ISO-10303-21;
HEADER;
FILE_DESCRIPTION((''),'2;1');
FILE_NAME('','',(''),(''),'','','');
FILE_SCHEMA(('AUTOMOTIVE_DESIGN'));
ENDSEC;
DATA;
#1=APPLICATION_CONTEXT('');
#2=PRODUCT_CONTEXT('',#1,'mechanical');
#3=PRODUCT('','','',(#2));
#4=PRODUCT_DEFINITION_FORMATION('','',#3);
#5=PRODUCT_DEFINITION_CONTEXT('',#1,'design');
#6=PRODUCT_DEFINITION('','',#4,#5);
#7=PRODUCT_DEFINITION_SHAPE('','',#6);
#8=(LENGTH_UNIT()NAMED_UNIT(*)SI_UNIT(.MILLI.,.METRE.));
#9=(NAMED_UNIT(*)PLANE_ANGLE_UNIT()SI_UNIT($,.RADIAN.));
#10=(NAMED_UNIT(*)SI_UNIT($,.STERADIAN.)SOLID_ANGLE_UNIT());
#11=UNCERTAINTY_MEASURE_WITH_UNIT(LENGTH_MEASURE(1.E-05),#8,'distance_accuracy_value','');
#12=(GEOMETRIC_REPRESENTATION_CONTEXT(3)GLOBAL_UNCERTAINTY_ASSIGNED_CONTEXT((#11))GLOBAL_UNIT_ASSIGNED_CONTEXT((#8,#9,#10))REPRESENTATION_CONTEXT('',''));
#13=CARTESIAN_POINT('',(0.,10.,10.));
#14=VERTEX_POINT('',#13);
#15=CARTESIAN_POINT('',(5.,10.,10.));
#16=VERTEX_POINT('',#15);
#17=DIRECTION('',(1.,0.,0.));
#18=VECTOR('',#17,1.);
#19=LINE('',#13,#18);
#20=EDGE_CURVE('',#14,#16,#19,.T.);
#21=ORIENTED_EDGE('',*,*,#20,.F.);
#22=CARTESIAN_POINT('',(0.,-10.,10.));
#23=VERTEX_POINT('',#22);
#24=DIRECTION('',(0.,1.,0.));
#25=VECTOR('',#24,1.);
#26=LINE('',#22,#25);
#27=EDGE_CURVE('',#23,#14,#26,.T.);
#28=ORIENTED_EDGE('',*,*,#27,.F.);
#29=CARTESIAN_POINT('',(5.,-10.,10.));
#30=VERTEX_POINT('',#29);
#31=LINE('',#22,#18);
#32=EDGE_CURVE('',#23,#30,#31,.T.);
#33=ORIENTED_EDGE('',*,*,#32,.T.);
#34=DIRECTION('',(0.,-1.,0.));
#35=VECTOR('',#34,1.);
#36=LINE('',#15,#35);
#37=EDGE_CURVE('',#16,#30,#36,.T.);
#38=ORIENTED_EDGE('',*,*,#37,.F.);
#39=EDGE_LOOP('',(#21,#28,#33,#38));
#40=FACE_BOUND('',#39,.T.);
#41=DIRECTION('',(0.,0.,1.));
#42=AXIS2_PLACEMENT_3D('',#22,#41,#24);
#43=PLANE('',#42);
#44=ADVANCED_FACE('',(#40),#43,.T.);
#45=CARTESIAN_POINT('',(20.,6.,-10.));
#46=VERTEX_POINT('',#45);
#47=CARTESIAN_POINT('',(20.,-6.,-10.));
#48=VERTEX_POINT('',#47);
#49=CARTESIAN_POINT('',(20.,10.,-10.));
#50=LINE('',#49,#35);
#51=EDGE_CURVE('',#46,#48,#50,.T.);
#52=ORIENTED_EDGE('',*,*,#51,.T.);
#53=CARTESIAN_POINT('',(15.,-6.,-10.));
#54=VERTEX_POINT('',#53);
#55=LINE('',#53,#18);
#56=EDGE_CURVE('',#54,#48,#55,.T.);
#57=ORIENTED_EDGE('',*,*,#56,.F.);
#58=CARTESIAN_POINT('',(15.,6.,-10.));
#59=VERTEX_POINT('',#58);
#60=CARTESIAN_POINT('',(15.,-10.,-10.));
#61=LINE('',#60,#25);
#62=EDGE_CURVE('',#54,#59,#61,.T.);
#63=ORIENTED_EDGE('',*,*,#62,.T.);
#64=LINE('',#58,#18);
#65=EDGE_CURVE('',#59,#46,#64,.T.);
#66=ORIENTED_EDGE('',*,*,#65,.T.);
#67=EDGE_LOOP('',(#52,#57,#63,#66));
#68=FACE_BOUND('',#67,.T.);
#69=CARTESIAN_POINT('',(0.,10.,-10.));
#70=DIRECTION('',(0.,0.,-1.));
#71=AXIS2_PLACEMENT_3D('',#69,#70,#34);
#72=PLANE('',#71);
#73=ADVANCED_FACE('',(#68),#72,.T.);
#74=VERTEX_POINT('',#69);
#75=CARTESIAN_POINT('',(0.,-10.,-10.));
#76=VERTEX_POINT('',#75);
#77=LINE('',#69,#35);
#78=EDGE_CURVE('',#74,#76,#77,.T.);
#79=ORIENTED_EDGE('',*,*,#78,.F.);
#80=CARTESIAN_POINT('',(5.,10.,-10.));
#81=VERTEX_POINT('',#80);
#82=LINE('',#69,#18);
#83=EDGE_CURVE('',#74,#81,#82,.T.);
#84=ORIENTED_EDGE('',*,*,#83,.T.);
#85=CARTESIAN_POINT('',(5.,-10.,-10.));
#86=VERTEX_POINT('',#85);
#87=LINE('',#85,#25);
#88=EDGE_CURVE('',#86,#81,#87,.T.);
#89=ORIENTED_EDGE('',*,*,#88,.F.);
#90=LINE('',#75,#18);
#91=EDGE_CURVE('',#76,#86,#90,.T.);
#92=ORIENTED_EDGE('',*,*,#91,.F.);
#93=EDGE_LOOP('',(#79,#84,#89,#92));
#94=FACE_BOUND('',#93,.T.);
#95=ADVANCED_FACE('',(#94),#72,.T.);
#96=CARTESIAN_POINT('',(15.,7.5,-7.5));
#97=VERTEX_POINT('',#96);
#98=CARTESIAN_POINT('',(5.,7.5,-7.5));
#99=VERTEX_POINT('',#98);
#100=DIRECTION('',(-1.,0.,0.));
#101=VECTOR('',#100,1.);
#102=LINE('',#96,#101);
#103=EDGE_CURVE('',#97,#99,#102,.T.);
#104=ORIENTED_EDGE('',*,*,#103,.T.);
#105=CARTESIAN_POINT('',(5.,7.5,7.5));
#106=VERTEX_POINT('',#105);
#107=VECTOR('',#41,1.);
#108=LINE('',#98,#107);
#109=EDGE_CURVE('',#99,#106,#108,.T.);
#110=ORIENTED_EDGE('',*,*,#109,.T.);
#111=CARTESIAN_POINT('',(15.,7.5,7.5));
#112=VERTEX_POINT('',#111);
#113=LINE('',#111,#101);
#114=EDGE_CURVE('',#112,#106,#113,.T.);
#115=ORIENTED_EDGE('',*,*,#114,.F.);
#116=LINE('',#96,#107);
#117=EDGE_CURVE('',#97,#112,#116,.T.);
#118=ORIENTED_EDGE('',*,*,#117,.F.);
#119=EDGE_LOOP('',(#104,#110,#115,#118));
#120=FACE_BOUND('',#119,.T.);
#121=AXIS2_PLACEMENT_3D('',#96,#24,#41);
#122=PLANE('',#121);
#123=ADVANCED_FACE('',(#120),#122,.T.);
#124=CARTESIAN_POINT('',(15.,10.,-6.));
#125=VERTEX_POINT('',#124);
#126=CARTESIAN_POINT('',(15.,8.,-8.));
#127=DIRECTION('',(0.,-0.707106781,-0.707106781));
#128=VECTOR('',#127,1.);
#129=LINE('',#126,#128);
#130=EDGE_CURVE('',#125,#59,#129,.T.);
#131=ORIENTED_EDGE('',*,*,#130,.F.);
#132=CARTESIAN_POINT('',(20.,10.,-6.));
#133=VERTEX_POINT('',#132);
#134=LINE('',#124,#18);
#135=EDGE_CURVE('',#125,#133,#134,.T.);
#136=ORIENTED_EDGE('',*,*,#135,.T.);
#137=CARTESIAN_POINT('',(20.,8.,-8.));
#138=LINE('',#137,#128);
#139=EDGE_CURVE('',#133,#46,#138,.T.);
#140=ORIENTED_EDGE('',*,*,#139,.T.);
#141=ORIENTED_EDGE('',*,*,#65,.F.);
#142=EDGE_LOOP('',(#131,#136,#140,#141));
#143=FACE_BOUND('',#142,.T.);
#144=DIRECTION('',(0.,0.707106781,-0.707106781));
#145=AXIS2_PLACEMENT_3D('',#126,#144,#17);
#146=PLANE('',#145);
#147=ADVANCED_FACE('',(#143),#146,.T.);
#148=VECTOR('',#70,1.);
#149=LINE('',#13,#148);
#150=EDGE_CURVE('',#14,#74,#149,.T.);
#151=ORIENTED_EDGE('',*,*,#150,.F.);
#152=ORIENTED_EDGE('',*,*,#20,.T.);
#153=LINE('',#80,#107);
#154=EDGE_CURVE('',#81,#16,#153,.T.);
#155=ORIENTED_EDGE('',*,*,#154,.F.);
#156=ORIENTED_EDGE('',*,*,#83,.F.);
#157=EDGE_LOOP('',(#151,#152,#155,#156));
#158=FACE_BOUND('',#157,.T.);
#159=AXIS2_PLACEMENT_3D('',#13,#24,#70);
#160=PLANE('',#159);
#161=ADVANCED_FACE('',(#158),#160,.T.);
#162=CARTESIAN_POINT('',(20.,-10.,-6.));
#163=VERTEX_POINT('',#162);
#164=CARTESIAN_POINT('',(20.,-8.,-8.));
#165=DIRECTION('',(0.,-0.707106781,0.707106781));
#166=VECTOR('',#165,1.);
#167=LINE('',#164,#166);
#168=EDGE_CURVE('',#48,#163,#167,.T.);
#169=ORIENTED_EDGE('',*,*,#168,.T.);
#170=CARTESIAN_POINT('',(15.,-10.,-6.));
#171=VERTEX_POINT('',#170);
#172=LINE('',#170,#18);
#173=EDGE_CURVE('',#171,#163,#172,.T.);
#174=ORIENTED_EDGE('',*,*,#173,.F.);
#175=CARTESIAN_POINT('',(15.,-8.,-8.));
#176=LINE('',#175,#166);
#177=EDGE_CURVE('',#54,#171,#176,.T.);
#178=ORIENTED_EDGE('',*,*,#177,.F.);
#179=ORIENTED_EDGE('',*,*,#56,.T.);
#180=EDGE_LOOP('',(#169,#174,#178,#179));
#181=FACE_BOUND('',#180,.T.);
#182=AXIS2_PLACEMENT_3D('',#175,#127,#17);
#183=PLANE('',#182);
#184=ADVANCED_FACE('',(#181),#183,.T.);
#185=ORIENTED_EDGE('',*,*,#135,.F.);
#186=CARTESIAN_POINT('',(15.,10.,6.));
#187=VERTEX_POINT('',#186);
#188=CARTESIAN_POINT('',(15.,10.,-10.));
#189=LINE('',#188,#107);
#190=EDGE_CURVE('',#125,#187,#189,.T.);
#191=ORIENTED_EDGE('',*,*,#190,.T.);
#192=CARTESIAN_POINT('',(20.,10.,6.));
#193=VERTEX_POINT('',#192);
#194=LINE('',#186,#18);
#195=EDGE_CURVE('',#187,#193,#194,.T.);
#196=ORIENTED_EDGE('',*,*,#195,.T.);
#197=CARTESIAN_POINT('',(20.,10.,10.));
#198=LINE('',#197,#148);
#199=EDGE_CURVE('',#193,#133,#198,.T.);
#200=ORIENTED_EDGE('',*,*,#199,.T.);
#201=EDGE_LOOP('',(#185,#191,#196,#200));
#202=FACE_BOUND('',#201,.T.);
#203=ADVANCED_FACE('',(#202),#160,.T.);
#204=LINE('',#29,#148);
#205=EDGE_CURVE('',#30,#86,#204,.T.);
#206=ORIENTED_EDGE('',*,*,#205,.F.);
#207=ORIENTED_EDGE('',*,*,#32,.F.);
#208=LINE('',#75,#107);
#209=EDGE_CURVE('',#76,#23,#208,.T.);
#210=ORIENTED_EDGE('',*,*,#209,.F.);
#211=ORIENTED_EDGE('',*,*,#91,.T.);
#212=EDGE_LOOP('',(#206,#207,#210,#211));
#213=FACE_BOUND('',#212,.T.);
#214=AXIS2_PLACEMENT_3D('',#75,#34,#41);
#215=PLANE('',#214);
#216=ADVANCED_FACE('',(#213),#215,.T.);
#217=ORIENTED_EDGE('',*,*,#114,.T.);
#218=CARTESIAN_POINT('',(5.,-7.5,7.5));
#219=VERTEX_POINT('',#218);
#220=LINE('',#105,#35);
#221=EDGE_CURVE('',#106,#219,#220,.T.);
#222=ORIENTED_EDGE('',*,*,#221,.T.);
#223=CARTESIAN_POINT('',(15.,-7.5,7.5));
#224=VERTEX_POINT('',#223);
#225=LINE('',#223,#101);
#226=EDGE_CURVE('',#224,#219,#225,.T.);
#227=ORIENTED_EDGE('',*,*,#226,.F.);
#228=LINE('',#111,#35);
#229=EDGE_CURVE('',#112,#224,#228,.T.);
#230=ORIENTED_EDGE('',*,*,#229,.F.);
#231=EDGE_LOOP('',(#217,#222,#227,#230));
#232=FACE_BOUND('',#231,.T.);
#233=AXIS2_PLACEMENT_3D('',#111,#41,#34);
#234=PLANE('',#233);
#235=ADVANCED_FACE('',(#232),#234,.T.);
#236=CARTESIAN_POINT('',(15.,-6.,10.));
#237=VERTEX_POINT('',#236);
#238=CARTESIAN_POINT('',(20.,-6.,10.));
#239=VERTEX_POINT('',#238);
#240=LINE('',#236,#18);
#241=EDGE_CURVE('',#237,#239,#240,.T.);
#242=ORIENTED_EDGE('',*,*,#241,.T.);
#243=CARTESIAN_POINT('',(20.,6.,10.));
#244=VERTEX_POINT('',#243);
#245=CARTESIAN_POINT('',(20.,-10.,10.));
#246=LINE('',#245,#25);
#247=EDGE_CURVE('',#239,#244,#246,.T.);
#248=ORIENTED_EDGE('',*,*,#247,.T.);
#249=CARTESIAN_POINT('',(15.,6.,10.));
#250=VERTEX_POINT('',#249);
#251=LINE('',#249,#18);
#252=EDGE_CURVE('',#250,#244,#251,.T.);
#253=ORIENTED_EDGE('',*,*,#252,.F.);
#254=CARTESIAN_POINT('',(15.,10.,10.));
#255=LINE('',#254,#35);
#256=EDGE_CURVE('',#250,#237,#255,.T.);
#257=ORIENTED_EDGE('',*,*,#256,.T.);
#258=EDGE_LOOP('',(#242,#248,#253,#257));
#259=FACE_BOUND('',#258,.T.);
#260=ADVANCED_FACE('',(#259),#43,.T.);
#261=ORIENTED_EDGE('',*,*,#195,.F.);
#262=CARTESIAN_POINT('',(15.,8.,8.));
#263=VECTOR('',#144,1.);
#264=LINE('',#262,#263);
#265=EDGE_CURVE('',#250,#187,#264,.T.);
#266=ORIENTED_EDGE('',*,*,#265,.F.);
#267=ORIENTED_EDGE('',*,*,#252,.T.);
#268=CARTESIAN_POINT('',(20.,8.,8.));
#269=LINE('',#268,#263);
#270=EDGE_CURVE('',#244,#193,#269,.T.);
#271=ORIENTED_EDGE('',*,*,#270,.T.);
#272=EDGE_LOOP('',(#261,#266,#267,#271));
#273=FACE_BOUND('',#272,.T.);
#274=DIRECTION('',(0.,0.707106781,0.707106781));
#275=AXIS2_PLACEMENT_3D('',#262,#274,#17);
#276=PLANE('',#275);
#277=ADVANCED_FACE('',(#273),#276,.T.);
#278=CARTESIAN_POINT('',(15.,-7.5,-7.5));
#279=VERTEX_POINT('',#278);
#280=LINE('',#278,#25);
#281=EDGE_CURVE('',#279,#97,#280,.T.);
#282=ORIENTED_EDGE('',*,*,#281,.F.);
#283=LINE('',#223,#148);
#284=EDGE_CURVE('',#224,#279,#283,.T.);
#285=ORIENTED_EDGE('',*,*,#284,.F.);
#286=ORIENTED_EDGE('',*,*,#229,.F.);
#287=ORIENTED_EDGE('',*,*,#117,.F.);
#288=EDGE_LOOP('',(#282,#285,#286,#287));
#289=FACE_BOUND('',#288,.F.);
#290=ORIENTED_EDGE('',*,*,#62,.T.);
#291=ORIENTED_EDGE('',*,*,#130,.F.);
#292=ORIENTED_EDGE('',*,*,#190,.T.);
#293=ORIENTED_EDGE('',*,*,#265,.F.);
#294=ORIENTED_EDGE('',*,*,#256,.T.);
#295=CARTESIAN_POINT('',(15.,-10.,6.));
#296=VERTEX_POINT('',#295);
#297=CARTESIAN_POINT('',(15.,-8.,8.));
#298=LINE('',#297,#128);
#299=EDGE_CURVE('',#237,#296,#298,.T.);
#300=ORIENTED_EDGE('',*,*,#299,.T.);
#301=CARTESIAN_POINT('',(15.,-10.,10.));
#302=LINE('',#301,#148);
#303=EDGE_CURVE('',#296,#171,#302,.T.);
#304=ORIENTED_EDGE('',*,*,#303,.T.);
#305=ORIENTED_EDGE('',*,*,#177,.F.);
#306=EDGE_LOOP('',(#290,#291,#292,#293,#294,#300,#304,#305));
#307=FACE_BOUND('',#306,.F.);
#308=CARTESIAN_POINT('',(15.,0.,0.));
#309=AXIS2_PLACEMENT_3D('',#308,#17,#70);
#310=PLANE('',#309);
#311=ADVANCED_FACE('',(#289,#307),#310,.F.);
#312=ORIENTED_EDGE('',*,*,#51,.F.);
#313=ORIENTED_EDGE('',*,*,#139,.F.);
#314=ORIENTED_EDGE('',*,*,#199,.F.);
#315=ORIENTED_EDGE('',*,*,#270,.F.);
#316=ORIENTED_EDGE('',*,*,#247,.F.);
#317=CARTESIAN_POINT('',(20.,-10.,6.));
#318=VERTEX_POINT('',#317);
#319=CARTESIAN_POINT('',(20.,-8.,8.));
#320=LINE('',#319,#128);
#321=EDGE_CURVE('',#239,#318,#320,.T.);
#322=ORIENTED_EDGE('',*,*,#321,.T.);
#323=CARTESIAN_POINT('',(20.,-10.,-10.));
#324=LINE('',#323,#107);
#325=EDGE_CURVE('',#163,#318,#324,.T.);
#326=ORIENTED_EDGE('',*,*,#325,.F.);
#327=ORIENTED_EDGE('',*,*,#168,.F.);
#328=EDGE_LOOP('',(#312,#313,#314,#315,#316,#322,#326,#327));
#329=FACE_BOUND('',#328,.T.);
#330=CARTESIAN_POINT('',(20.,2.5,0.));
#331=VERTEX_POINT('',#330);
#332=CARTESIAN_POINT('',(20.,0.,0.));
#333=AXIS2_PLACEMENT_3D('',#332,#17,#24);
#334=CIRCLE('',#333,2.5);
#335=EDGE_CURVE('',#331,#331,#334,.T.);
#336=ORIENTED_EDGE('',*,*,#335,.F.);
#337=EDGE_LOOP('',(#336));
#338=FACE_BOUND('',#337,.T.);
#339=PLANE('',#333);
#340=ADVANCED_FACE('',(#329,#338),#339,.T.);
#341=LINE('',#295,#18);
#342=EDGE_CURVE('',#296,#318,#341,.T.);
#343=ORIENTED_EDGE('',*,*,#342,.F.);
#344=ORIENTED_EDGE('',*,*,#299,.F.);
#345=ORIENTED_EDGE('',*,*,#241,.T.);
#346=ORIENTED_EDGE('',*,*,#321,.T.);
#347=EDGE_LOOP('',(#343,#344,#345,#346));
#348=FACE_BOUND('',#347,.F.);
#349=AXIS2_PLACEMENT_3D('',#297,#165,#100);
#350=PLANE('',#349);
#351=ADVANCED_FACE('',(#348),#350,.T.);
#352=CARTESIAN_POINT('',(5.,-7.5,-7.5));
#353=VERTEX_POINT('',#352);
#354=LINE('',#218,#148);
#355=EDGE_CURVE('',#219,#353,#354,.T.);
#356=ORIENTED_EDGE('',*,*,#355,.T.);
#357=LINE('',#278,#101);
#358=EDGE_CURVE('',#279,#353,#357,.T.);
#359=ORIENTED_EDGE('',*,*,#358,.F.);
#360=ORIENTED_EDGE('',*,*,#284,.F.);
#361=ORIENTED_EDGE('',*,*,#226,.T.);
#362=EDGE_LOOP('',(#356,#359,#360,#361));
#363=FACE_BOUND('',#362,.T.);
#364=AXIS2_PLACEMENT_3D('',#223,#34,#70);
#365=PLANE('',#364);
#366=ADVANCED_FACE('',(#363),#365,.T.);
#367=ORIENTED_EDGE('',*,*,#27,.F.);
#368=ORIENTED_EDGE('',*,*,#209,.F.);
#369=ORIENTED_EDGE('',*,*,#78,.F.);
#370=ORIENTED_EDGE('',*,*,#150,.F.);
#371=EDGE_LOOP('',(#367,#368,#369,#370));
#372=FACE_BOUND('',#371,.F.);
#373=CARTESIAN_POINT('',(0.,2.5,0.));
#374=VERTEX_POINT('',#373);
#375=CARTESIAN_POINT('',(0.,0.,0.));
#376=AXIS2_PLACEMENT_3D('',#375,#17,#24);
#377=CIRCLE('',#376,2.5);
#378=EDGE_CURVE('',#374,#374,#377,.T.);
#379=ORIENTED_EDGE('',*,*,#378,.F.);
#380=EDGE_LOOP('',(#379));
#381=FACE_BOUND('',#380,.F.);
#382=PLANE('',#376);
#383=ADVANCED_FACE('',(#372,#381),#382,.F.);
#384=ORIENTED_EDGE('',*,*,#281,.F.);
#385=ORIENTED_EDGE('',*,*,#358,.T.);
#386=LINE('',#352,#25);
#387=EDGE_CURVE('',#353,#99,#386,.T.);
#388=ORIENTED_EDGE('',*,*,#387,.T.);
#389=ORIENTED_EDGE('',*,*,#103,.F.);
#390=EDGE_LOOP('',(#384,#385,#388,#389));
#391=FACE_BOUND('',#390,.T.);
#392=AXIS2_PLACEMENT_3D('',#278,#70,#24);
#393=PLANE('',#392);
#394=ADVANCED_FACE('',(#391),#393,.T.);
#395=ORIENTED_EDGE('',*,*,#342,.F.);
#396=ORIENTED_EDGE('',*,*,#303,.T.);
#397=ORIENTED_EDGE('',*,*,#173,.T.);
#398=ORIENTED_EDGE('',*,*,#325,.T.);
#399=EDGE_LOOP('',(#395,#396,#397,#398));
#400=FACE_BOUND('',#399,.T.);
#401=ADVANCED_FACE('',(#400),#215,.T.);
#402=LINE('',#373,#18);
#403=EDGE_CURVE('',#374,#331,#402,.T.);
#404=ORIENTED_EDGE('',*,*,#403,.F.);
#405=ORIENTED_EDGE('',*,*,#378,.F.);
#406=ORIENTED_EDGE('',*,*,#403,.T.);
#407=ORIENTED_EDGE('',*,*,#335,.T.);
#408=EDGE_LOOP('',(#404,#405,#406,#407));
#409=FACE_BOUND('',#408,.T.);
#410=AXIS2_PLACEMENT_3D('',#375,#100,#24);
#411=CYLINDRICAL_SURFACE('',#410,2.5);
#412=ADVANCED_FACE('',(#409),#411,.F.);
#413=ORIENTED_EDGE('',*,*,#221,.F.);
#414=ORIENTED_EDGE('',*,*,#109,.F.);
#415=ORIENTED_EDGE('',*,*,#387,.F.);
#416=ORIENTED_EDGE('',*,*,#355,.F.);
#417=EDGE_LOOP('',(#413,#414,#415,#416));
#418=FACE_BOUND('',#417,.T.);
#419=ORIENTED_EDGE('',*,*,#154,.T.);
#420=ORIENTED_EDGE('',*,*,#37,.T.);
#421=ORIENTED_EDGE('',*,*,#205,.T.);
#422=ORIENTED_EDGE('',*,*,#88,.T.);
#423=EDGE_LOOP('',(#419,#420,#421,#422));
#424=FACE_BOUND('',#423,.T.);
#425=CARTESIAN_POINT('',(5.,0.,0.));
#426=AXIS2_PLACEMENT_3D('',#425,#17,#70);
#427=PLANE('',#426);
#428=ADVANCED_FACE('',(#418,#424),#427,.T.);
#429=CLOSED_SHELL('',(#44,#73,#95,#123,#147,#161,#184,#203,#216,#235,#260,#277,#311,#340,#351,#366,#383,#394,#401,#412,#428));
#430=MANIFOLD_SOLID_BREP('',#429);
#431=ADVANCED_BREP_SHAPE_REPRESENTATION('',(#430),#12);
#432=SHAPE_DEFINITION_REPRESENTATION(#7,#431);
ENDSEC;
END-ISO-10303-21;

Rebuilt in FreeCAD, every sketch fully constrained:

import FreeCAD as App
import Part
import Sketcher
from FreeCAD import Vector


def edges_at(feature, points):
    """Names of the edges that pass closest to the given points."""
    edges = feature.Shape.Edges
    near = lambda p: min(range(len(edges)), key=lambda i: edges[i].distToShape(Part.Vertex(*p))[0])
    return sorted({f"Edge{near(p) + 1}" for p in points})


def add_polygon(sketch, points):
    """Adds a closed chain of lines whose ends are joined by coincident constraints."""
    first, n = sketch.GeometryCount, len(points)
    for a, b in zip(points, points[1:] + points[:1]):
        sketch.addGeometry(Part.LineSegment(App.Vector(*a, 0), App.Vector(*b, 0)), False)
    for i in range(n):
        sketch.addConstraint(Sketcher.Constraint("Coincident", first + i, 2, first + (i + 1) % n, 1))

doc = App.newDocument("Part")
body = doc.addObject("PartDesign::Body", "Body")

sketch1 = doc.addObject("Sketcher::SketchObject", "Sketch")
body.addObject(sketch1)
sketch1.AttachmentSupport = (doc.YZ_Plane, [""])
sketch1.MapMode = "FlatFace"
add_polygon(sketch1, [(10, 10), (-10, 10), (-10, -10), (10, -10)])
sketch1.addGeometry(Part.Circle(Vector(0, 0, 0), Vector(0, 0, 1), 2.5), False)
sketch1.addConstraint([
    Sketcher.Constraint("Horizontal", 0),
    Sketcher.Constraint("Vertical", 1),
    Sketcher.Constraint("Horizontal", 2),
    Sketcher.Constraint("Vertical", 3),
    Sketcher.Constraint("Coincident", 4, 3, -1, 1),
    Sketcher.Constraint("Symmetric", 0, 2, 2, 2, -1, 1),
    Sketcher.Constraint("Equal", 2, 1),
    Sketcher.Constraint("Diameter", 4, 5.0),
    Sketcher.Constraint("DistanceX", 0, 2, 0, 1, 20.0),
])
pad1 = doc.addObject("PartDesign::Pad", "Pad")
body.addObject(pad1)
pad1.Profile = sketch1
pad1.Length = 20

sketch2 = doc.addObject("Sketcher::SketchObject", "Sketch001")
body.addObject(sketch2)
sketch2.AttachmentSupport = (doc.YZ_Plane, [""])
sketch2.MapMode = "FlatFace"
sketch2.AttachmentOffset = App.Placement(Vector(0, 0, 15), App.Rotation())
add_polygon(sketch2, [(-10, 10), (-10, -10), (10, -10), (10, 10)])
add_polygon(sketch2, [(-8, -8), (-8, 8), (8, 8), (8, -8)])
sketch2.addConstraint([
    Sketcher.Constraint("Vertical", 0),
    Sketcher.Constraint("Horizontal", 1),
    Sketcher.Constraint("Vertical", 2),
    Sketcher.Constraint("Horizontal", 3),
    Sketcher.Constraint("Vertical", 4),
    Sketcher.Constraint("Horizontal", 5),
    Sketcher.Constraint("Vertical", 6),
    Sketcher.Constraint("Horizontal", 7),
    Sketcher.Constraint("Symmetric", 0, 2, 2, 2, -1, 1),
    Sketcher.Constraint("Symmetric", 4, 2, 6, 2, -1, 1),
    Sketcher.Constraint("Equal", 3, 0),
    Sketcher.Constraint("Equal", 7, 4),
    Sketcher.Constraint("DistanceX", 5, 1, 5, 2, 15.0),
    Sketcher.Constraint("DistanceX", 1, 1, 1, 2, 20.0),
])
pocket1 = doc.addObject("PartDesign::Pocket", "Pocket")
body.addObject(pocket1)
pocket1.Profile = sketch2
pocket1.Length = 10
doc.recompute()

chamfer = doc.addObject("PartDesign::Chamfer", "Chamfer")
body.addObject(chamfer)
chamfer.Base = (pocket1, edges_at(pocket1, [
    (17.5, 10, 10),
    (17.5, 10, -10),
    (17.5, -10, -10),
    (17.5, -10, 10),
]))
chamfer.Size = 4

doc.recompute()
